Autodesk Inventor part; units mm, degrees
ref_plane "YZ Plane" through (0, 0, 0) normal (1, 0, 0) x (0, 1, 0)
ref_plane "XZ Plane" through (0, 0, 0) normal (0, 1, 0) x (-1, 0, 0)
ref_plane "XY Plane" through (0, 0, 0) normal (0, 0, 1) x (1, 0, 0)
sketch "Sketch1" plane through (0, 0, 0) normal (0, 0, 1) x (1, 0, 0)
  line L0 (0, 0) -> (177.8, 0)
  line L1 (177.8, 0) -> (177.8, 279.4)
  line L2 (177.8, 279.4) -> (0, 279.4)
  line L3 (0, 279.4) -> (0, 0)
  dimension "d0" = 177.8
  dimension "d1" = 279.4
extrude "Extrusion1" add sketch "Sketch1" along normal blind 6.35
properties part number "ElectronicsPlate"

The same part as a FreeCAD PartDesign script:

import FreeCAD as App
import Part
import Sketcher
Q = App.Units.Quantity


def add_polygon(sketch, points):
    """Adds a closed chain of lines whose ends are joined by coincident constraints."""
    first, n = sketch.GeometryCount, len(points)
    for a, b in zip(points, points[1:] + points[:1]):
        sketch.addGeometry(Part.LineSegment(App.Vector(*a, 0), App.Vector(*b, 0)), False)
    for i in range(n):
        sketch.addConstraint(Sketcher.Constraint("Coincident", first + i, 2, first + (i + 1) % n, 1))

doc = App.newDocument("Part")
params = doc.addObject("Spreadsheet::Sheet", "Params")
for row, (alias, value) in enumerate([
    ("sketch1_width", "7 in"),
    ("sketch1_height", "11 in"),
    ("pad1_length", "0.25 in"),
], start=1):
    params.set(f"A{row}", alias)
    params.set(f"B{row}", "=" + value)
    params.setAlias(f"B{row}", alias)

body = doc.addObject("PartDesign::Body", "Body")

sketch1 = doc.addObject("Sketcher::SketchObject", "Sketch")
body.addObject(sketch1)
sketch1.AttachmentSupport = (doc.XY_Plane, [""])
sketch1.MapMode = "FlatFace"
add_polygon(sketch1, [(0, 279.4), (0, 0), (177.8, 0), (177.8, 279.4)])
sketch1.addConstraint([
    Sketcher.Constraint("Vertical", 0),
    Sketcher.Constraint("Horizontal", 1),
    Sketcher.Constraint("Vertical", 2),
    Sketcher.Constraint("Horizontal", 3),
    Sketcher.Constraint("Coincident", 0, 2, -1, 1),
    Sketcher.Constraint("DistanceX", 1, 1, 1, 2, Q("7 in")),
    Sketcher.Constraint("DistanceY", 0, 2, 0, 1, Q("11 in")),
])
sketch1.setExpression("Constraints[9]", "Params.sketch1_width")
sketch1.setExpression("Constraints[10]", "Params.sketch1_height")
pad1 = doc.addObject("PartDesign::Pad", "Pad")
body.addObject(pad1)
pad1.Profile = sketch1
pad1.setExpression("Length", "Params.pad1_length")

doc.recompute()
